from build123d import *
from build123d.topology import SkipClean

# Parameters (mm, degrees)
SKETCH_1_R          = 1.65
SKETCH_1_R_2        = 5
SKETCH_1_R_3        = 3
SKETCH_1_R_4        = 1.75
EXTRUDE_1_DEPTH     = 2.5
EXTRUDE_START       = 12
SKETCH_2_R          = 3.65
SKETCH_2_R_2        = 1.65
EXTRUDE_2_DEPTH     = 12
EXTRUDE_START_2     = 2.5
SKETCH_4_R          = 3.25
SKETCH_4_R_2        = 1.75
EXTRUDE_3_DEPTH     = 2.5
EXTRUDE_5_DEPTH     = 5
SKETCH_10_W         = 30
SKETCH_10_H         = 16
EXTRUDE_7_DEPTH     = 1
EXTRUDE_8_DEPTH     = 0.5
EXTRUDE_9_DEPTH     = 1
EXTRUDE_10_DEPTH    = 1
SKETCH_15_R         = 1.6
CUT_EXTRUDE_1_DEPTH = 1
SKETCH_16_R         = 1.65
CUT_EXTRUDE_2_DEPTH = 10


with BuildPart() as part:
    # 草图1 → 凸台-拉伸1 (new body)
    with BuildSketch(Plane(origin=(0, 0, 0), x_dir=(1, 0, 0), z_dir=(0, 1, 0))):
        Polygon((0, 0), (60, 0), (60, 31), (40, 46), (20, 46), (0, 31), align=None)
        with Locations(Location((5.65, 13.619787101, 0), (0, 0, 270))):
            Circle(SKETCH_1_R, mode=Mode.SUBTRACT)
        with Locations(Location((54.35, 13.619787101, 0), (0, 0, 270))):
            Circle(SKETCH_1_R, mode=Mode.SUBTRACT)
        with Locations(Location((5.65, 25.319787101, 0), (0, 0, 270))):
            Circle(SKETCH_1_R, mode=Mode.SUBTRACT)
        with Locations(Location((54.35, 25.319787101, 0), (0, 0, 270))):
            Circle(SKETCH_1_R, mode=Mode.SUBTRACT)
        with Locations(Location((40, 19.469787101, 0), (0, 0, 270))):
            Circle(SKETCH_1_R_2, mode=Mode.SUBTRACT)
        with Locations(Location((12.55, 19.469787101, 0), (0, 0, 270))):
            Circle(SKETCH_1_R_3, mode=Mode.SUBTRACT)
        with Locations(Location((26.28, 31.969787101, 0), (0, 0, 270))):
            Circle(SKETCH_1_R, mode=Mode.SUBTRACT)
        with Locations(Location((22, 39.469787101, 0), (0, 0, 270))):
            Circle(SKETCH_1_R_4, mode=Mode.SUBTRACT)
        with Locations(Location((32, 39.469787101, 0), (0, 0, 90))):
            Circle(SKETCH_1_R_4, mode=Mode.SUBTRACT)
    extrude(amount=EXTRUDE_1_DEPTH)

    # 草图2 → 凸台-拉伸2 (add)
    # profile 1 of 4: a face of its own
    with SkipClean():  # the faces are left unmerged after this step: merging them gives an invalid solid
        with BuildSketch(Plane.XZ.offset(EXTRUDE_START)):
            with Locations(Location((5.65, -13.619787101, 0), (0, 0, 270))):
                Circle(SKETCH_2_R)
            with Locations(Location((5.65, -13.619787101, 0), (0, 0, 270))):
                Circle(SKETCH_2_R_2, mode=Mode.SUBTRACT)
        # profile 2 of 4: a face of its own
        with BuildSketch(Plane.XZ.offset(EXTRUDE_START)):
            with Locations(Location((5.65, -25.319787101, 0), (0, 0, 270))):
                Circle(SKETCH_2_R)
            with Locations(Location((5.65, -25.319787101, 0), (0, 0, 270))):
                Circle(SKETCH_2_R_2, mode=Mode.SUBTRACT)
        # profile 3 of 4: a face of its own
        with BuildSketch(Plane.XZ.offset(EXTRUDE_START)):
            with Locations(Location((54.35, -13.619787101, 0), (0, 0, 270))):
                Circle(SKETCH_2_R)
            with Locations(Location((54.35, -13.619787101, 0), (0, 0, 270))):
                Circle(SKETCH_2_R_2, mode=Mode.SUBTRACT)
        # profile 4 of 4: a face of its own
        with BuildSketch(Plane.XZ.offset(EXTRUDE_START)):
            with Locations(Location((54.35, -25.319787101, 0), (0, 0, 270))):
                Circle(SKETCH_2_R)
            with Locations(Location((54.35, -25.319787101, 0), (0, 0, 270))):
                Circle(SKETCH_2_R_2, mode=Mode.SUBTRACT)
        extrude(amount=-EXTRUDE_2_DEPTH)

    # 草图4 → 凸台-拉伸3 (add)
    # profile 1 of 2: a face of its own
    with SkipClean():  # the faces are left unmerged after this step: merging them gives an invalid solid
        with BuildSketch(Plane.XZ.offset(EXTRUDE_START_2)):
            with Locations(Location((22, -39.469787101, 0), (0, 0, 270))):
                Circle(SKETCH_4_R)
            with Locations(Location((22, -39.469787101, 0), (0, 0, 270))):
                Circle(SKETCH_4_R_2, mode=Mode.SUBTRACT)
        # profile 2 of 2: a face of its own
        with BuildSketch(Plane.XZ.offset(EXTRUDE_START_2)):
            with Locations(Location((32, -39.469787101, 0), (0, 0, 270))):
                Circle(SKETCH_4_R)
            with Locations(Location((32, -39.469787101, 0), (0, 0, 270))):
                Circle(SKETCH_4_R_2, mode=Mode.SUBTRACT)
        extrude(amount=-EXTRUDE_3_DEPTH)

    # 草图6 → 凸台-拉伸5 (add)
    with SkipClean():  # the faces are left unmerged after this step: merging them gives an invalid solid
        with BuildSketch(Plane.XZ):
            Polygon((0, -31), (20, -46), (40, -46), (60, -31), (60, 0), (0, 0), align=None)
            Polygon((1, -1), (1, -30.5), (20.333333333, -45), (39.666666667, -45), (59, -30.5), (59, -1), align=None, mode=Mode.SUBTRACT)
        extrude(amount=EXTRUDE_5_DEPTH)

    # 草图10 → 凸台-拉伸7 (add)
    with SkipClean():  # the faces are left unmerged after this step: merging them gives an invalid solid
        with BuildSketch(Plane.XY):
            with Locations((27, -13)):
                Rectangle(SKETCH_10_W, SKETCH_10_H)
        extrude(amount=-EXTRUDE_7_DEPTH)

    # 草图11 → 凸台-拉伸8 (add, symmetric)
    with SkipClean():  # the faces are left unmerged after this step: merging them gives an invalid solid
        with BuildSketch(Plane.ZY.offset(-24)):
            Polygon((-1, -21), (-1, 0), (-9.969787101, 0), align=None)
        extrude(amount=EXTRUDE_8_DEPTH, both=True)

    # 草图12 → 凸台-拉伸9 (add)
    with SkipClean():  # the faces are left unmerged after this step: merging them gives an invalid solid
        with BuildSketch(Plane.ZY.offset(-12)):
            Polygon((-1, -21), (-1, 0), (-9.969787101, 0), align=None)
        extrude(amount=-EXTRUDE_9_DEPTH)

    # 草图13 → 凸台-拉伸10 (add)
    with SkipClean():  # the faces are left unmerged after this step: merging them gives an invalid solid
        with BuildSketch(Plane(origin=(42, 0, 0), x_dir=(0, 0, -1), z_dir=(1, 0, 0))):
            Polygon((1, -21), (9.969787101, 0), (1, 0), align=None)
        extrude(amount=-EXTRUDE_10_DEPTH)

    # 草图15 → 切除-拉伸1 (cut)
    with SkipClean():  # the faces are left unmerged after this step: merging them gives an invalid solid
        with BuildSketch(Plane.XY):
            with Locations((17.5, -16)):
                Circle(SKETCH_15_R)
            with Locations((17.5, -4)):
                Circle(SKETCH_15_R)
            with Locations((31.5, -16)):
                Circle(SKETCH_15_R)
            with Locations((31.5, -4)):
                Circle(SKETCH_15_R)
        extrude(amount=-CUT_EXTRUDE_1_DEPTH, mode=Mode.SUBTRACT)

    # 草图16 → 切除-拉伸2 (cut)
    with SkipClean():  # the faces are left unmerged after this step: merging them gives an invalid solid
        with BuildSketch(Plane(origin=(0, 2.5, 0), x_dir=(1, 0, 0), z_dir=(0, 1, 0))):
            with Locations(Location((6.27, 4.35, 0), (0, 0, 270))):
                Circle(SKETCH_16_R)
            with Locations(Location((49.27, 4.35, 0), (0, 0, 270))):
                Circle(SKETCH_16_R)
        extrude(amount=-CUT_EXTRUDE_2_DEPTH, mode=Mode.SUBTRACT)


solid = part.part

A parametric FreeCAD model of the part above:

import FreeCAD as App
import Part
import Sketcher

V = App.Vector

doc = App.newDocument("Part")
body = doc.addObject("PartDesign::Body", "Body")

# Sketch on XZ plane
sketch1 = body.newObject("Sketcher::SketchObject", "Sketch")
sketch1.AttachmentSupport = (doc.getObject("XZ_Plane"), [""])
sketch1.MapMode = "FlatFace"
sketch1.addGeometry(Part.LineSegment(V(0, 0, 0), V(60, 0, 0)), False)
sketch1.addGeometry(Part.LineSegment(V(60, 0, 0), V(60, -31, 0)), False)
sketch1.addGeometry(Part.LineSegment(V(60, -31, 0), V(40, -46, 0)), False)
sketch1.addGeometry(Part.LineSegment(V(40, -46, 0), V(20, -46, 0)), False)
sketch1.addGeometry(Part.LineSegment(V(20, -46, 0), V(0, -31, 0)), False)
sketch1.addGeometry(Part.LineSegment(V(0, -31, 0), V(0, 0, 0)), False)
sketch1.addGeometry(Part.Circle(V(5.7, -13.6, 0), V(0, 0, 1), 1.6), False)
sketch1.addGeometry(Part.Circle(V(12.6, -19.5, 0), V(0, 0, 1), 3), False)
sketch1.addGeometry(Part.Circle(V(5.7, -25.3, 0), V(0, 0, 1), 1.6), False)
sketch1.addGeometry(Part.Circle(V(54.4, -13.6, 0), V(0, 0, 1), 1.6), False)
sketch1.addGeometry(Part.Circle(V(40, -19.5, 0), V(0, 0, 1), 5), False)
sketch1.addGeometry(Part.Circle(V(54.4, -25.3, 0), V(0, 0, 1), 1.6), False)
sketch1.addGeometry(Part.Circle(V(26.3, -32, 0), V(0, 0, 1), 1.6), False)
sketch1.addGeometry(Part.Circle(V(22, -39.5, 0), V(0, 0, 1), 1.8), False)
sketch1.addGeometry(Part.Circle(V(32, -39.5, 0), V(0, 0, 1), 1.8), False)
sketch1.addConstraint(Sketcher.Constraint("Coincident", 0, 2, 1, 1))
sketch1.addConstraint(Sketcher.Constraint("Coincident", 1, 2, 2, 1))
sketch1.addConstraint(Sketcher.Constraint("Coincident", 2, 2, 3, 1))
sketch1.addConstraint(Sketcher.Constraint("Coincident", 3, 2, 4, 1))
sketch1.addConstraint(Sketcher.Constraint("Coincident", 4, 2, 5, 1))
sketch1.addConstraint(Sketcher.Constraint("Coincident", 5, 2, 0, 1))
sketch1.addConstraint(Sketcher.Constraint("Horizontal", 0))
sketch1.addConstraint(Sketcher.Constraint("Vertical", 1))
sketch1.addConstraint(Sketcher.Constraint("Horizontal", 3))
sketch1.addConstraint(Sketcher.Constraint("Vertical", 5))
sketch1.addConstraint(Sketcher.Constraint("Coincident", 5, 2, -1, 1))
sketch1.addConstraint(Sketcher.Constraint("Equal", 6, 8))
sketch1.addConstraint(Sketcher.Constraint("Equal", 8, 9))
sketch1.addConstraint(Sketcher.Constraint("Equal", 9, 11))
sketch1.addConstraint(Sketcher.Constraint("Equal", 11, 12))
sketch1.addConstraint(Sketcher.Constraint("Equal", 13, 14))
sketch1.addConstraint(Sketcher.Constraint("Horizontal", 6, 3, 9, 3))
sketch1.addConstraint(Sketcher.Constraint("Horizontal", 7, 3, 10, 3))
sketch1.addConstraint(Sketcher.Constraint("Horizontal", 8, 3, 11, 3))
sketch1.addConstraint(Sketcher.Constraint("Horizontal", 13, 3, 14, 3))
sketch1.addConstraint(Sketcher.Constraint("Horizontal", 1, 2, 4, 2))
sketch1.addConstraint(Sketcher.Constraint("Vertical", 6, 3, 8, 3))
sketch1.addConstraint(Sketcher.Constraint("Vertical", 9, 3, 11, 3))
sketch1.addConstraint(Sketcher.Constraint("Vertical", 10, 3, 2, 2))
sketch1.addConstraint(Sketcher.Constraint("Equal", 2, 4))
sketch1.addConstraint(Sketcher.Constraint("Diameter", 7, 6.0))
sketch1.addConstraint(Sketcher.Constraint("Diameter", 10, 10.0))
sketch1.addConstraint(Sketcher.Constraint("Diameter", 6, 3.3))
sketch1.addConstraint(Sketcher.Constraint("Diameter", 13, 3.5))
sketch1.addConstraint(Sketcher.Constraint("DistanceX", 0, 1, 0, 2, 60.0))
sketch1.addConstraint(Sketcher.Constraint("DistanceX", 3, 2, 3, 1, 20.0))
sketch1.addConstraint(Sketcher.Constraint("DistanceY", 1, 2, 1, 1, 31.0))
sketch1.addConstraint(Sketcher.Constraint("Distance", 2, 25.0))
sketch1.addConstraint(Sketcher.Constraint("DistanceX", -1, 1, 13, 3, 22.0))
sketch1.addConstraint(Sketcher.Constraint("DistanceX", -1, 1, 14, 3, 32.0))
sketch1.addConstraint(Sketcher.Constraint("DistanceY", 13, 3, 7, 3, 20.0))
sketch1.addConstraint(Sketcher.Constraint("DistanceX", 6, 3, 7, 3, 6.9))
sketch1.addConstraint(Sketcher.Constraint("DistanceY", 8, 3, 6, 3, 11.7))
sketch1.addConstraint(Sketcher.Constraint("DistanceX", 7, 3, 9, 3, 41.8))
sketch1.addConstraint(Sketcher.Constraint("DistanceY", 12, 3, 10, 3, 12.5))
sketch1.addConstraint(Sketcher.Constraint("DistanceX", -1, 1, 6, 3, 5.65))
sketch1.addConstraint(Sketcher.Constraint("DistanceX", -1, 1, 12, 3, 26.28))
sketch1.addConstraint(Sketcher.Constraint("DistanceY", 7, 3, 6, 3, 5.85))
sketch1.addConstraint(Sketcher.Constraint("DistanceY", 6, 3, -1, 1, 13.619787))
pad1 = body.newObject("PartDesign::Pad", "Pad")
pad1.Profile = sketch1
pad1.Length = 2.5
pad1.Reversed = True

# Sketch on XZ plane
sketch2 = body.newObject("Sketcher::SketchObject", "Sketch001")
sketch2.AttachmentSupport = (doc.getObject("XZ_Plane"), [""])
sketch2.MapMode = "FlatFace"
sketch2.AttachmentOffset = App.Placement(V(0, 0, 12), App.Rotation())
sketch2.addGeometry(Part.Circle(V(5.7, -13.6, 0), V(0, 0, 1), 3.6), False)
sketch2.addGeometry(Part.Circle(V(5.7, -13.6, 0), V(0, 0, 1), 1.6), False)
sketch2.addGeometry(Part.Circle(V(5.7, -25.3, 0), V(0, 0, 1), 3.6), False)
sketch2.addGeometry(Part.Circle(V(5.7, -25.3, 0), V(0, 0, 1), 1.6), False)
sketch2.addGeometry(Part.Circle(V(54.4, -13.6, 0), V(0, 0, 1), 3.6), False)
sketch2.addGeometry(Part.Circle(V(54.4, -13.6, 0), V(0, 0, 1), 1.6), False)
sketch2.addGeometry(Part.Circle(V(54.4, -25.3, 0), V(0, 0, 1), 3.6), False)
sketch2.addGeometry(Part.Circle(V(54.4, -25.3, 0), V(0, 0, 1), 1.6), False)
sketch2.addConstraint(Sketcher.Constraint("Coincident", 1, 3, 0, 3))
sketch2.addConstraint(Sketcher.Constraint("Coincident", 3, 3, 2, 3))
sketch2.addConstraint(Sketcher.Constraint("Coincident", 5, 3, 4, 3))
sketch2.addConstraint(Sketcher.Constraint("Coincident", 7, 3, 6, 3))
sketch2.addConstraint(Sketcher.Constraint("Equal", 0, 2))
sketch2.addConstraint(Sketcher.Constraint("Equal", 1, 3))
sketch2.addConstraint(Sketcher.Constraint("Equal", 2, 4))
sketch2.addConstraint(Sketcher.Constraint("Equal", 3, 5))
sketch2.addConstraint(Sketcher.Constraint("Equal", 4, 6))
sketch2.addConstraint(Sketcher.Constraint("Equal", 5, 7))
sketch2.addConstraint(Sketcher.Constraint("Horizontal", 1, 3, 4, 3))
sketch2.addConstraint(Sketcher.Constraint("Horizontal", 3, 3, 6, 3))
sketch2.addConstraint(Sketcher.Constraint("Vertical", 1, 3, 2, 3))
sketch2.addConstraint(Sketcher.Constraint("Vertical", 5, 3, 6, 3))
sketch2.addConstraint(Sketcher.Constraint("Diameter", 0, 7.3))
sketch2.addConstraint(Sketcher.Constraint("Diameter", 1, 3.3))
sketch2.addConstraint(Sketcher.Constraint("DistanceY", 2, 3, 0, 3, 11.7))
sketch2.addConstraint(Sketcher.Constraint("DistanceX", 0, 3, 4, 3, 48.7))
sketch2.addConstraint(Sketcher.Constraint("DistanceX", -1, 1, 0, 3, 5.65))
sketch2.addConstraint(Sketcher.Constraint("DistanceY", 0, 3, -1, 1, 13.619787))
pad2 = body.newObject("PartDesign::Pad", "Pad001")
pad2.Profile = sketch2
pad2.Length = 12
pad2.Reversed = True

# Sketch on XZ plane
sketch3 = body.newObject("Sketcher::SketchObject", "Sketch002")
sketch3.AttachmentSupport = (doc.getObject("XZ_Plane"), [""])
sketch3.MapMode = "FlatFace"
sketch3.AttachmentOffset = App.Placement(V(0, 0, 2.5), App.Rotation())
sketch3.addGeometry(Part.Circle(V(22, -39.5, 0), V(0, 0, 1), 3.2), False)
sketch3.addGeometry(Part.Circle(V(22, -39.5, 0), V(0, 0, 1), 1.8), False)
sketch3.addGeometry(Part.Circle(V(32, -39.5, 0), V(0, 0, 1), 3.2), False)
sketch3.addGeometry(Part.Circle(V(32, -39.5, 0), V(0, 0, 1), 1.8), False)
sketch3.addConstraint(Sketcher.Constraint("Coincident", 1, 3, 0, 3))
sketch3.addConstraint(Sketcher.Constraint("Coincident", 3, 3, 2, 3))
sketch3.addConstraint(Sketcher.Constraint("Equal", 0, 2))
sketch3.addConstraint(Sketcher.Constraint("Equal", 1, 3))
sketch3.addConstraint(Sketcher.Constraint("Horizontal", 1, 3, 2, 3))
sketch3.addConstraint(Sketcher.Constraint("Diameter", 0, 6.5))
sketch3.addConstraint(Sketcher.Constraint("Diameter", 1, 3.5))
sketch3.addConstraint(Sketcher.Constraint("DistanceX", -1, 1, 0, 3, 22.0))
sketch3.addConstraint(Sketcher.Constraint("DistanceX", -1, 1, 2, 3, 32.0))
sketch3.addConstraint(Sketcher.Constraint("DistanceY", 0, 3, -1, 1, 39.469787))
pad3 = body.newObject("PartDesign::Pad", "Pad002")
pad3.Profile = sketch3
pad3.Length = 2.5
pad3.Reversed = True

# Sketch on XZ plane
sketch4 = body.newObject("Sketcher::SketchObject", "Sketch003")
sketch4.AttachmentSupport = (doc.getObject("XZ_Plane"), [""])
sketch4.MapMode = "FlatFace"
sketch4.addGeometry(Part.LineSegment(V(0, -31, 0), V(20, -46, 0)), False)
sketch4.addGeometry(Part.LineSegment(V(20, -46, 0), V(40, -46, 0)), False)
sketch4.addGeometry(Part.LineSegment(V(40, -46, 0), V(60, -31, 0)), False)
sketch4.addGeometry(Part.LineSegment(V(60, -31, 0), V(60, 0, 0)), False)
sketch4.addGeometry(Part.LineSegment(V(60, 0, 0), V(0, 0, 0)), False)
sketch4.addGeometry(Part.LineSegment(V(0, 0, 0), V(0, -31, 0)), False)
sketch4.addGeometry(Part.LineSegment(V(1, -30, 0), V(1, -1, 0)), False)
sketch4.addGeometry(Part.LineSegment(V(1, -1, 0), V(59, -1, 0)), False)
sketch4.addGeometry(Part.LineSegment(V(59, -1, 0), V(59, -30, 0)), False)
sketch4.addGeometry(Part.LineSegment(V(59, -30, 0), V(40, -45, 0)), False)
sketch4.addGeometry(Part.LineSegment(V(40, -45, 0), V(20, -45, 0)), False)
sketch4.addGeometry(Part.LineSegment(V(20, -45, 0), V(1, -30, 0)), False)
sketch4.addConstraint(Sketcher.Constraint("Coincident", 0, 2, 1, 1))
sketch4.addConstraint(Sketcher.Constraint("Coincident", 1, 2, 2, 1))
sketch4.addConstraint(Sketcher.Constraint("Coincident", 2, 2, 3, 1))
sketch4.addConstraint(Sketcher.Constraint("Coincident", 3, 2, 4, 1))
sketch4.addConstraint(Sketcher.Constraint("Coincident", 4, 2, 5, 1))
sketch4.addConstraint(Sketcher.Constraint("Coincident", 5, 2, 0, 1))
sketch4.addConstraint(Sketcher.Constraint("Coincident", 6, 2, 7, 1))
sketch4.addConstraint(Sketcher.Constraint("Coincident", 7, 2, 8, 1))
sketch4.addConstraint(Sketcher.Constraint("Coincident", 8, 2, 9, 1))
sketch4.addConstraint(Sketcher.Constraint("Coincident", 9, 2, 10, 1))
sketch4.addConstraint(Sketcher.Constraint("Coincident", 10, 2, 11, 1))
sketch4.addConstraint(Sketcher.Constraint("Coincident", 11, 2, 6, 1))
sketch4.addConstraint(Sketcher.Constraint("Horizontal", 1))
sketch4.addConstraint(Sketcher.Constraint("Vertical", 3))
sketch4.addConstraint(Sketcher.Constraint("Horizontal", 4))
sketch4.addConstraint(Sketcher.Constraint("Vertical", 5))
sketch4.addConstraint(Sketcher.Constraint("Vertical", 6))
sketch4.addConstraint(Sketcher.Constraint("Horizontal", 7))
sketch4.addConstraint(Sketcher.Constraint("Vertical", 8))
sketch4.addConstraint(Sketcher.Constraint("Horizontal", 10))
sketch4.addConstraint(Sketcher.Constraint("Coincident", 4, 2, -1, 1))
sketch4.addConstraint(Sketcher.Constraint("Parallel", 2, 9))
sketch4.addConstraint(Sketcher.Constraint("Parallel", 0, 11))
sketch4.addConstraint(Sketcher.Constraint("Horizontal", 2, 2, 5, 2))
sketch4.addConstraint(Sketcher.Constraint("Horizontal", 8, 2, 11, 2))
sketch4.addConstraint(Sketcher.Constraint("Equal", 0, 2))
sketch4.addConstraint(Sketcher.Constraint("DistanceX", 1, 1, 1, 2, 20.0))
sketch4.addConstraint(Sketcher.Constraint("DistanceX", 4, 2, 4, 1, 60.0))
sketch4.addConstraint(Sketcher.Constraint("DistanceX", 7, 1, 7, 2, 58.0))
sketch4.addConstraint(Sketcher.Constraint("DistanceY", 3, 1, 3, 2, 31.0))
sketch4.addConstraint(Sketcher.Constraint("Distance", 0, 25.0))
sketch4.addConstraint(Sketcher.Constraint("DistanceY", 6, 1, 6, 2, 29.5))
sketch4.addConstraint(Sketcher.Constraint("DistanceX", -1, 1, 6, 2, 1.0))
sketch4.addConstraint(Sketcher.Constraint("DistanceY", 6, 2, -1, 1, 1.0))
sketch4.addConstraint(Sketcher.Constraint("DistanceY", 9, 2, -1, 1, 45.0))
pad4 = body.newObject("PartDesign::Pad", "Pad003")
pad4.Profile = sketch4
pad4.Length = 5

# Sketch on XY plane
sketch5 = body.newObject("Sketcher::SketchObject", "Sketch004")
sketch5.AttachmentSupport = (doc.getObject("XY_Plane"), [""])
sketch5.MapMode = "FlatFace"
sketch5.addGeometry(Part.LineSegment(V(12, -5, 0), V(12, -21, 0)), False)
sketch5.addGeometry(Part.LineSegment(V(12, -21, 0), V(42, -21, 0)), False)
sketch5.addGeometry(Part.LineSegment(V(42, -21, 0), V(42, -5, 0)), False)
sketch5.addGeometry(Part.LineSegment(V(42, -5, 0), V(12, -5, 0)), False)
sketch5.addConstraint(Sketcher.Constraint("Coincident", 0, 2, 1, 1))
sketch5.addConstraint(Sketcher.Constraint("Coincident", 1, 2, 2, 1))
sketch5.addConstraint(Sketcher.Constraint("Coincident", 2, 2, 3, 1))
sketch5.addConstraint(Sketcher.Constraint("Coincident", 3, 2, 0, 1))
sketch5.addConstraint(Sketcher.Constraint("Vertical", 0))
sketch5.addConstraint(Sketcher.Constraint("Horizontal", 1))
sketch5.addConstraint(Sketcher.Constraint("Vertical", 2))
sketch5.addConstraint(Sketcher.Constraint("Horizontal", 3))
sketch5.addConstraint(Sketcher.Constraint("DistanceX", 1, 1, 1, 2, 30.0))
sketch5.addConstraint(Sketcher.Constraint("DistanceY", 0, 2, 0, 1, 16.0))
sketch5.addConstraint(Sketcher.Constraint("DistanceX", -1, 1, 0, 2, 12.0))
sketch5.addConstraint(Sketcher.Constraint("DistanceY", 0, 2, -1, 1, 21.0))
pad5 = body.newObject("PartDesign::Pad", "Pad004")
pad5.Profile = sketch5
pad5.Length = 1
pad5.Reversed = True

# Sketch on YZ plane
sketch6 = body.newObject("Sketcher::SketchObject", "Sketch005")
sketch6.AttachmentSupport = (doc.getObject("YZ_Plane"), [""])
sketch6.MapMode = "FlatFace"
sketch6.AttachmentOffset = App.Placement(V(0, 0, 24), App.Rotation())
sketch6.addGeometry(Part.LineSegment(V(-21, -1, 0), V(0, -1, 0)), False)
sketch6.addGeometry(Part.LineSegment(V(0, -1, 0), V(0, -10, 0)), False)
sketch6.addGeometry(Part.LineSegment(V(0, -10, 0), V(-21, -1, 0)), False)
sketch6.addConstraint(Sketcher.Constraint("Coincident", 0, 2, 1, 1))
sketch6.addConstraint(Sketcher.Constraint("Coincident", 1, 2, 2, 1))
sketch6.addConstraint(Sketcher.Constraint("Coincident", 2, 2, 0, 1))
sketch6.addConstraint(Sketcher.Constraint("Horizontal", 0))
sketch6.addConstraint(Sketcher.Constraint("Vertical", 1))
sketch6.addConstraint(Sketcher.Constraint("PointOnObject", 0, 2, -2))
sketch6.addConstraint(Sketcher.Constraint("DistanceX", 0, 1, 0, 2, 21.0))
sketch6.addConstraint(Sketcher.Constraint("DistanceY", 0, 2, -1, 1, 1.0))
sketch6.addConstraint(Sketcher.Constraint("DistanceY", 1, 2, 1, 1, 8.969787))
pad6 = body.newObject("PartDesign::Pad", "Pad005")
pad6.Profile = sketch6
pad6.Length = 1
pad6.Midplane = True

# Sketch on YZ plane
sketch7 = body.newObject("Sketcher::SketchObject", "Sketch006")
sketch7.AttachmentSupport = (doc.getObject("YZ_Plane"), [""])
sketch7.MapMode = "FlatFace"
sketch7.AttachmentOffset = App.Placement(V(0, 0, 12), App.Rotation())
sketch7.addGeometry(Part.LineSegment(V(-21, -1, 0), V(0, -1, 0)), False)
sketch7.addGeometry(Part.LineSegment(V(0, -1, 0), V(0, -10, 0)), False)
sketch7.addGeometry(Part.LineSegment(V(0, -10, 0), V(-21, -1, 0)), False)
sketch7.addConstraint(Sketcher.Constraint("Coincident", 0, 2, 1, 1))
sketch7.addConstraint(Sketcher.Constraint("Coincident", 1, 2, 2, 1))
sketch7.addConstraint(Sketcher.Constraint("Coincident", 2, 2, 0, 1))
sketch7.addConstraint(Sketcher.Constraint("Horizontal", 0))
sketch7.addConstraint(Sketcher.Constraint("Vertical", 1))
sketch7.addConstraint(Sketcher.Constraint("PointOnObject", 0, 2, -2))
sketch7.addConstraint(Sketcher.Constraint("DistanceX", 0, 1, 0, 2, 21.0))
sketch7.addConstraint(Sketcher.Constraint("DistanceY", 0, 2, -1, 1, 1.0))
sketch7.addConstraint(Sketcher.Constraint("DistanceY", 1, 2, 1, 1, 8.969787))
pad7 = body.newObject("PartDesign::Pad", "Pad006")
pad7.Profile = sketch7
pad7.Length = 1

# Sketch on YZ plane
sketch8 = body.newObject("Sketcher::SketchObject", "Sketch007")
sketch8.AttachmentSupport = (doc.getObject("YZ_Plane"), [""])
sketch8.MapMode = "FlatFace"
sketch8.AttachmentOffset = App.Placement(V(0, 0, 42), App.Rotation())
sketch8.addGeometry(Part.LineSegment(V(-21, -1, 0), V(0, -10, 0)), False)
sketch8.addGeometry(Part.LineSegment(V(0, -10, 0), V(0, -1, 0)), False)
sketch8.addGeometry(Part.LineSegment(V(0, -1, 0), V(-21, -1, 0)), False)
sketch8.addConstraint(Sketcher.Constraint("Coincident", 0, 2, 1, 1))
sketch8.addConstraint(Sketcher.Constraint("Coincident", 1, 2, 2, 1))
sketch8.addConstraint(Sketcher.Constraint("Coincident", 2, 2, 0, 1))
sketch8.addConstraint(Sketcher.Constraint("Vertical", 1))
sketch8.addConstraint(Sketcher.Constraint("Horizontal", 2))
sketch8.addConstraint(Sketcher.Constraint("PointOnObject", 0, 2, -2))
sketch8.addConstraint(Sketcher.Constraint("DistanceX", 2, 2, 2, 1, 21.0))
sketch8.addConstraint(Sketcher.Constraint("DistanceY", 1, 2, -1, 1, 1.0))
sketch8.addConstraint(Sketcher.Constraint("DistanceY", 1, 1, 1, 2, 8.969787))
pad8 = body.newObject("PartDesign::Pad", "Pad007")
pad8.Profile = sketch8
pad8.Length = 1
pad8.Reversed = True

# Sketch on XY plane
sketch9 = body.newObject("Sketcher::SketchObject", "Sketch008")
sketch9.AttachmentSupport = (doc.getObject("XY_Plane"), [""])
sketch9.MapMode = "FlatFace"
sketch9.addGeometry(Part.Circle(V(17.5, -16, 0), V(0, 0, 1), 1.6), False)
sketch9.addGeometry(Part.Circle(V(17.5, -4, 0), V(0, 0, 1), 1.6), False)
sketch9.addGeometry(Part.Circle(V(31.5, -16, 0), V(0, 0, 1), 1.6), False)
sketch9.addGeometry(Part.Circle(V(31.5, -4, 0), V(0, 0, 1), 1.6), False)
sketch9.addConstraint(Sketcher.Constraint("Equal", 0, 1))
sketch9.addConstraint(Sketcher.Constraint("Equal", 1, 2))
sketch9.addConstraint(Sketcher.Constraint("Equal", 2, 3))
sketch9.addConstraint(Sketcher.Constraint("Horizontal", 0, 3, 2, 3))
sketch9.addConstraint(Sketcher.Constraint("Horizontal", 1, 3, 3, 3))
sketch9.addConstraint(Sketcher.Constraint("Vertical", 0, 3, 1, 3))
sketch9.addConstraint(Sketcher.Constraint("Vertical", 2, 3, 3, 3))
sketch9.addConstraint(Sketcher.Constraint("Diameter", 0, 3.2))
sketch9.addConstraint(Sketcher.Constraint("DistanceY", 0, 3, -1, 1, 16.0))
sketch9.addConstraint(Sketcher.Constraint("DistanceY", 1, 3, -1, 1, 4.0))
sketch9.addConstraint(Sketcher.Constraint("DistanceX", 0, 3, 2, 3, 14.0))
sketch9.addConstraint(Sketcher.Constraint("DistanceX", -1, 1, 0, 3, 17.5))
pocket1 = body.newObject("PartDesign::Pocket", "Pocket")
pocket1.Profile = sketch9
pocket1.Length = 1

# Sketch on XZ plane
sketch10 = body.newObject("Sketcher::SketchObject", "Sketch009")
sketch10.AttachmentSupport = (doc.getObject("XZ_Plane"), [""])
sketch10.MapMode = "FlatFace"
sketch10.AttachmentOffset = App.Placement(V(0, 0, -2.5), App.Rotation())
sketch10.addGeometry(Part.Circle(V(6.3, -4.3, 0), V(0, 0, 1), 1.6), False)
sketch10.addGeometry(Part.Circle(V(49.3, -4.3, 0), V(0, 0, 1), 1.6), False)
sketch10.addConstraint(Sketcher.Constraint("Equal", 0, 1))
sketch10.addConstraint(Sketcher.Constraint("Horizontal", 0, 3, 1, 3))
sketch10.addConstraint(Sketcher.Constraint("Diameter", 0, 3.3))
sketch10.addConstraint(Sketcher.Constraint("DistanceX", 0, 3, 1, 3, 43.0))
sketch10.addConstraint(Sketcher.Constraint("DistanceX", -1, 1, 0, 3, 6.27))
sketch10.addConstraint(Sketcher.Constraint("DistanceY", 0, 3, -1, 1, 4.35))
pocket2 = body.newObject("PartDesign::Pocket", "Pocket001")
pocket2.Profile = sketch10
pocket2.Length = 10
pocket2.Reversed = True

doc.recompute()
